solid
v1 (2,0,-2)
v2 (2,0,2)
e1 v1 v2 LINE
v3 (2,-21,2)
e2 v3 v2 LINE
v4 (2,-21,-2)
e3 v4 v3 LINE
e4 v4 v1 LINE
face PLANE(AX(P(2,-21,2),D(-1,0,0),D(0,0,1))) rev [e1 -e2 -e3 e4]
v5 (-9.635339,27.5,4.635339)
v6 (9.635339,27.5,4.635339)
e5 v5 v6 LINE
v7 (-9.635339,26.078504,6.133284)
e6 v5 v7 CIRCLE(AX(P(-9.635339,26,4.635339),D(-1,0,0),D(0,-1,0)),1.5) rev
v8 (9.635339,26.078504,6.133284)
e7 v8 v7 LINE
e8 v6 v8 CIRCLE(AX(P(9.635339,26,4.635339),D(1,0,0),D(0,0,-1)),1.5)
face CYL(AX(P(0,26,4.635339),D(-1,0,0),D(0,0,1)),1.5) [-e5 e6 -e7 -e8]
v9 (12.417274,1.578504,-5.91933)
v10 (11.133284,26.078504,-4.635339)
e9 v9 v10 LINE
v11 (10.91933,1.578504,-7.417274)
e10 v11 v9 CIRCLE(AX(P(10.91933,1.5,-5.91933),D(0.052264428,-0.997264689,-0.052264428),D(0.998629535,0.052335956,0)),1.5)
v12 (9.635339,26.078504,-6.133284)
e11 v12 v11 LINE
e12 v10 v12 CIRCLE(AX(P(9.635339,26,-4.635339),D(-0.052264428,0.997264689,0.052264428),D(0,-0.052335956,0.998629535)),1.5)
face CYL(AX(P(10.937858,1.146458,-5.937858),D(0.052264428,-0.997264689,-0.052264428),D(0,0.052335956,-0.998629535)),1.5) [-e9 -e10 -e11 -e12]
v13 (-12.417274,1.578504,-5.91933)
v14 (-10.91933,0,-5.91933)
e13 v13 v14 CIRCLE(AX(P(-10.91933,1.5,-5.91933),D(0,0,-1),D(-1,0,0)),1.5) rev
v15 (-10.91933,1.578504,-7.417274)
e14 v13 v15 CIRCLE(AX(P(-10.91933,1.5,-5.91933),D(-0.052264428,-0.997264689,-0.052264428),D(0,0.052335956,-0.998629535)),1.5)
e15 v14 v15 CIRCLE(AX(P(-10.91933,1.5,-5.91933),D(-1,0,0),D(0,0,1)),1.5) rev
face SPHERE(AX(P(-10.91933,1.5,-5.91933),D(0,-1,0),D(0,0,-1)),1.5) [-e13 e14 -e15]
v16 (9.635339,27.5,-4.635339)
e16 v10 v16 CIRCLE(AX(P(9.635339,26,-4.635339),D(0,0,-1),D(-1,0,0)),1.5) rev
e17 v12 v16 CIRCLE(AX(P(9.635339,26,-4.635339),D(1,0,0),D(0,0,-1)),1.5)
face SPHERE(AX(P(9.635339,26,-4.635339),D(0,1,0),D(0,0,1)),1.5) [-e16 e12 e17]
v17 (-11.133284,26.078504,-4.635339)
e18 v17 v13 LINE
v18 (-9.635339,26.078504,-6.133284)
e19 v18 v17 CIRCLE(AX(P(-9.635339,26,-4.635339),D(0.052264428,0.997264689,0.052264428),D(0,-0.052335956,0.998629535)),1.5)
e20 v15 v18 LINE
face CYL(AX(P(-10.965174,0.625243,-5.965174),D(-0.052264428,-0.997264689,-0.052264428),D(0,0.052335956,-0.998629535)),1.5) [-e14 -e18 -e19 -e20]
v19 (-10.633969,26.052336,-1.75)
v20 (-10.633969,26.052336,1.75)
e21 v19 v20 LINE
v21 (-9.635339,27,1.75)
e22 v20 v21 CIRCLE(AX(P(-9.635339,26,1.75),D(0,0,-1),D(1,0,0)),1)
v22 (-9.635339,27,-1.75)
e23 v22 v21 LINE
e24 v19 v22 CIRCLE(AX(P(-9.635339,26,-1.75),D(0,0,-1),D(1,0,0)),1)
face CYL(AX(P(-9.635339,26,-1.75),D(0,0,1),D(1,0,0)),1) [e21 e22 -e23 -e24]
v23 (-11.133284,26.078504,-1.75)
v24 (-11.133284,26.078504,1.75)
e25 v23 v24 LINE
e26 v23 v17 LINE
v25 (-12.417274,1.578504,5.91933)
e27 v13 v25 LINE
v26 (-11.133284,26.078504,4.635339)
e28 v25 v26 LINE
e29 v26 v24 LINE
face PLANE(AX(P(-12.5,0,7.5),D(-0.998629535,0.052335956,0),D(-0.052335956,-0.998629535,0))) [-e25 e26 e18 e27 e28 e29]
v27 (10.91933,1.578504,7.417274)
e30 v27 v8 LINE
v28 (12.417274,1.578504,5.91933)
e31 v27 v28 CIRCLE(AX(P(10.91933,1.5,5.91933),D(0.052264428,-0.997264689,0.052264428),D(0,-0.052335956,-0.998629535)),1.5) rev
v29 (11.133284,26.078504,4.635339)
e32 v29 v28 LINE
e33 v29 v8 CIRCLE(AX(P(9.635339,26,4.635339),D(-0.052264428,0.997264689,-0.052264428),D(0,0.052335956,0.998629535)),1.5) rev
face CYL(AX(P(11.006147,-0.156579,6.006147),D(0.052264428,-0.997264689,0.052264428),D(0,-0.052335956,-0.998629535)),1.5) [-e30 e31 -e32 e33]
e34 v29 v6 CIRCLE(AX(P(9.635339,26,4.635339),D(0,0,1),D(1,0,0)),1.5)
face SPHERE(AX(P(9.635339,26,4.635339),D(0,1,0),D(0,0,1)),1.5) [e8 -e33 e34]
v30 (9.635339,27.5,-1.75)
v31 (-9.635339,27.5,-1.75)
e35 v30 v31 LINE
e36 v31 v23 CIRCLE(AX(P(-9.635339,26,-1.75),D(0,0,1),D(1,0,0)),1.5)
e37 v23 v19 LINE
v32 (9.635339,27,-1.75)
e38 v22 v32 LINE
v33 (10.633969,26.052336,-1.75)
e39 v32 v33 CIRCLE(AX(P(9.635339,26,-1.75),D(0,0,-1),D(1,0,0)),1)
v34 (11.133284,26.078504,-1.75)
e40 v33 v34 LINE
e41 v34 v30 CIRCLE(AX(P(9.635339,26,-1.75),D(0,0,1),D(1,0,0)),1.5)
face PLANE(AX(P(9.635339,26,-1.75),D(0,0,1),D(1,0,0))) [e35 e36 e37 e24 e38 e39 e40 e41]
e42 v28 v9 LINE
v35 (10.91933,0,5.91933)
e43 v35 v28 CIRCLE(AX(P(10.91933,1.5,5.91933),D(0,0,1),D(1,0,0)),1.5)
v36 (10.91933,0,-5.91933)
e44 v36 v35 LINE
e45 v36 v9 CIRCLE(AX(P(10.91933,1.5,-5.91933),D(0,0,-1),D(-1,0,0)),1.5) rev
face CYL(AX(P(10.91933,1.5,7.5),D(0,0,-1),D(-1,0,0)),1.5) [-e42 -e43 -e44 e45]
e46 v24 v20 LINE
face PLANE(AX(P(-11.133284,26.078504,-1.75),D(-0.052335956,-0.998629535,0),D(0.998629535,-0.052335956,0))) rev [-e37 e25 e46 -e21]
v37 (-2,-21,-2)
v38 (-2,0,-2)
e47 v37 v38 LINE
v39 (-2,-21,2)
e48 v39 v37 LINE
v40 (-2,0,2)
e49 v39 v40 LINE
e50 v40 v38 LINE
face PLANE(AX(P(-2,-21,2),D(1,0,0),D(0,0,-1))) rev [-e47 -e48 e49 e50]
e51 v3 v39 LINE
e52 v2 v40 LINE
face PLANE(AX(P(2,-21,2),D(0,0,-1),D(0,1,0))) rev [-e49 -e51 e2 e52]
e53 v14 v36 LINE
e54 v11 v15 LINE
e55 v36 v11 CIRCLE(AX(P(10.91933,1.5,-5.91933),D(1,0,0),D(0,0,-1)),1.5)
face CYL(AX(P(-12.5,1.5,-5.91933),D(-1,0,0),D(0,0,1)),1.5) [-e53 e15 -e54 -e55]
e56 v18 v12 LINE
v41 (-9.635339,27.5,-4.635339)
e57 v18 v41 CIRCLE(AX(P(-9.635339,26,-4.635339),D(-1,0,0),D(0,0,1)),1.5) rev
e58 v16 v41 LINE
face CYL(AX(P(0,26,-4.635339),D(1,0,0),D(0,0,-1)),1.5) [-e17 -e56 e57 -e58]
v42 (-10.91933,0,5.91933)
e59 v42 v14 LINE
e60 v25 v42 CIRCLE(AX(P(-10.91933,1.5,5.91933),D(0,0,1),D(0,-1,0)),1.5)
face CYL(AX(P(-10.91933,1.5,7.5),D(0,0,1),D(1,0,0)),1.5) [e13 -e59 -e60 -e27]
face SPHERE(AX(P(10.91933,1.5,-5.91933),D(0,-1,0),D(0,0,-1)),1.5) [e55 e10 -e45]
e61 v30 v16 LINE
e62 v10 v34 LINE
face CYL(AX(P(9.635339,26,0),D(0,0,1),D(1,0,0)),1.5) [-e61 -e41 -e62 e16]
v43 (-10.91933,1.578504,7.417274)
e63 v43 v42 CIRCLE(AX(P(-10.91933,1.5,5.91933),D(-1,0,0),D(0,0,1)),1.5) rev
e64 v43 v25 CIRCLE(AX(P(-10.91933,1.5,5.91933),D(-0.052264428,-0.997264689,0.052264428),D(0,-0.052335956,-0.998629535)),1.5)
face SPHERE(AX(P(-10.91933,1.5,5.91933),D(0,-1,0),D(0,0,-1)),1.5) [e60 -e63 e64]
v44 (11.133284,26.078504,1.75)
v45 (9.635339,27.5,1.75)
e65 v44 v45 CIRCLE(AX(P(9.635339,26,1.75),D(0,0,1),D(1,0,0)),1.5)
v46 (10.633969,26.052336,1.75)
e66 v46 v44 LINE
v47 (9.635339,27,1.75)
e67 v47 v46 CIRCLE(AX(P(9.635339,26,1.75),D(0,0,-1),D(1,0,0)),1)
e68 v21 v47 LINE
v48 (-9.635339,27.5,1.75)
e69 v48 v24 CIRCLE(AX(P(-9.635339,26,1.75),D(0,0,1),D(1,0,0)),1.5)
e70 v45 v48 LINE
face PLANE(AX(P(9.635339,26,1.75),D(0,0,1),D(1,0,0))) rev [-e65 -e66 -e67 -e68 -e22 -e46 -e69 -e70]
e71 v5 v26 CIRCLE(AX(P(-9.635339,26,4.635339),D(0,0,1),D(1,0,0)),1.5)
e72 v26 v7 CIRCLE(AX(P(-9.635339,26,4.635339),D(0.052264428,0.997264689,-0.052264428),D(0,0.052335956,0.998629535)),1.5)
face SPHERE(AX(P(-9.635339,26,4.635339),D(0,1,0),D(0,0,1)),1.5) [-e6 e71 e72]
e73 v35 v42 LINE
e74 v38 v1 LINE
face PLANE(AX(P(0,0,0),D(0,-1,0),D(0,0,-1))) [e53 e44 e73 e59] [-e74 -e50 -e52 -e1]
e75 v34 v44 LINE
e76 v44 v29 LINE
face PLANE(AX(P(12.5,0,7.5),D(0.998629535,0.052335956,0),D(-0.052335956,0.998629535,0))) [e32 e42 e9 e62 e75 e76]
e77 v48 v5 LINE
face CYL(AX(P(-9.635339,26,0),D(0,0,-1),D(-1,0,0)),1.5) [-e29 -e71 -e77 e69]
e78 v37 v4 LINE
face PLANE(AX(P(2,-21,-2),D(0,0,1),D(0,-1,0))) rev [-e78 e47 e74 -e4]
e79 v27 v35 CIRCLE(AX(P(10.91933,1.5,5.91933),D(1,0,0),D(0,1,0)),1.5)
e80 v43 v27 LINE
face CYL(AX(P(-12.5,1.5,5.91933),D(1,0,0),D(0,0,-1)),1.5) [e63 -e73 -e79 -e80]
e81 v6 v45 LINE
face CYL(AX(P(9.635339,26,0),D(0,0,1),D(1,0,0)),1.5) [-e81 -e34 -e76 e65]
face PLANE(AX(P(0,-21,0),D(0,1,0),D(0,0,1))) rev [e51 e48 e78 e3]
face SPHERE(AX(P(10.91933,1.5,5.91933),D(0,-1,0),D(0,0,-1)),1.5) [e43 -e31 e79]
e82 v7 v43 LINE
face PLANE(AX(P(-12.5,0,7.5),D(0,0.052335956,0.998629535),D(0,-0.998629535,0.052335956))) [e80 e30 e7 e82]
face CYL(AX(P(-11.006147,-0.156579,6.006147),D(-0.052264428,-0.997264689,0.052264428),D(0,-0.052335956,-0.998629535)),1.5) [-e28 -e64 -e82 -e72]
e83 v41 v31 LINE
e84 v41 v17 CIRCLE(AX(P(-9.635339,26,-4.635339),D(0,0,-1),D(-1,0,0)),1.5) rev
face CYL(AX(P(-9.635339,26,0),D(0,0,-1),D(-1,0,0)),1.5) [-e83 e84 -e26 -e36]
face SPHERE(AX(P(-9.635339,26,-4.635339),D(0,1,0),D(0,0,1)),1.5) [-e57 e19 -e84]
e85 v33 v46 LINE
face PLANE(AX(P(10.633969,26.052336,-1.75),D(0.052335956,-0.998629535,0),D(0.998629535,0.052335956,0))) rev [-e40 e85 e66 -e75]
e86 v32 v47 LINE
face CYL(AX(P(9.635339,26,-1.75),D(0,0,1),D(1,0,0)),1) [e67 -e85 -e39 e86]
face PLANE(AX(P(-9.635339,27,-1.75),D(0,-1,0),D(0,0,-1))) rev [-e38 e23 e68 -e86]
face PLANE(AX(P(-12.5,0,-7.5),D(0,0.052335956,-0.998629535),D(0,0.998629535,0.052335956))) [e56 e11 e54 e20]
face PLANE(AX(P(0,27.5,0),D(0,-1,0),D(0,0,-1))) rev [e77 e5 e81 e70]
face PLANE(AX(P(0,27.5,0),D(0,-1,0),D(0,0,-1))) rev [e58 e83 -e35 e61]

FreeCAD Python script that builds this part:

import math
import FreeCAD as App
import Part
import Sketcher
from FreeCAD import Vector
Q = App.Units.Quantity


def add_polygon(sketch, points):
    """Adds a closed chain of lines whose ends are joined by coincident constraints."""
    first, n = sketch.GeometryCount, len(points)
    for a, b in zip(points, points[1:] + points[:1]):
        sketch.addGeometry(Part.LineSegment(App.Vector(*a, 0), App.Vector(*b, 0)), False)
    for i in range(n):
        sketch.addConstraint(Sketcher.Constraint("Coincident", first + i, 2, first + (i + 1) % n, 1))

doc = App.newDocument("Part")
body = doc.addObject("PartDesign::Body", "Body")

sketch1 = doc.addObject("Sketcher::SketchObject", "Sketch")
body.addObject(sketch1)
sketch1.AttachmentSupport = (doc.XZ_Plane, [""])
sketch1.MapMode = "FlatFace"
add_polygon(sketch1, [(-12.5, -7.5), (-12.5, 7.5), (12.5, 7.5), (12.5, -7.5)])
sketch1.addConstraint([
    Sketcher.Constraint("Vertical", 0),
    Sketcher.Constraint("Horizontal", 1),
    Sketcher.Constraint("Vertical", 2),
    Sketcher.Constraint("Horizontal", 3),
    Sketcher.Constraint("Symmetric", 0, 2, 2, 2, -1, 1),
    Sketcher.Constraint("DistanceX", 1, 1, 1, 2, Q("25 mm")),
    Sketcher.Constraint("DistanceY", 0, 1, 0, 2, Q("15 mm")),
])
pad1 = doc.addObject("PartDesign::Pad", "Pad")
body.addObject(pad1)
pad1.Profile = sketch1
pad1.Length = 27.5
pad1.Reversed = True
pad1.TaperAngle = -3
doc.recompute()

fillet = doc.addObject("PartDesign::Fillet", "Fillet")
body.addObject(fillet)
fillet.Base = (pad1, ["Edge1"])
fillet.UseAllEdges = True
fillet.Radius = 1.5

sketch2 = doc.addObject("Sketcher::SketchObject", "Sketch001")
body.addObject(sketch2)
sketch2.AttachmentSupport = (doc.XZ_Plane, [""])
sketch2.MapMode = "FlatFace"
add_polygon(sketch2, [(2, -2), (2, 2), (-2, 2), (-2, -2)])
sketch2.addConstraint([
    Sketcher.Constraint("Vertical", 0),
    Sketcher.Constraint("Horizontal", 1),
    Sketcher.Constraint("Vertical", 2),
    Sketcher.Constraint("Horizontal", 3),
    Sketcher.Constraint("Symmetric", 0, 2, 2, 2, -1, 1),
    Sketcher.Constraint("Equal", 3, 0),
    Sketcher.Constraint("DistanceX", 1, 2, 1, 1, Q("4 mm")),
])
pad2 = doc.addObject("PartDesign::Pad", "Pad001")
body.addObject(pad2)
pad2.Profile = sketch2
pad2.Length = 21

sketch3 = doc.addObject("Sketcher::SketchObject", "Sketch002")
body.addObject(sketch3)
sketch3.AttachmentSupport = (doc.XY_Plane, [""])
sketch3.MapMode = "FlatFace"
sketch3.addGeometry([
    Part.LineSegment(Vector(9.635339, 27.5, 0), Vector(-9.635339, 27.5, 0)),
    Part.ArcOfCircle(Part.Circle(Vector(-9.635339, 26, 0), Vector(0, 0, 1), 1.5), math.radians(90), math.radians(177)),
    Part.LineSegment(Vector(-11.133284, 26.078504, 0), Vector(-10.633969, 26.052336, 0)),
    Part.ArcOfCircle(Part.Circle(Vector(-9.635339, 26, 0), Vector(0, 0, 1), 1), math.radians(90), math.radians(177)),
    Part.LineSegment(Vector(-9.635339, 27, 0), Vector(9.635339, 27, 0)),
    Part.ArcOfCircle(Part.Circle(Vector(9.635339, 26, 0), Vector(0, 0, 1), 1), math.radians(3), math.radians(90)),
    Part.LineSegment(Vector(10.633969, 26.052336, 0), Vector(11.133284, 26.078504, 0)),
    Part.ArcOfCircle(Part.Circle(Vector(9.635339, 26, 0), Vector(0, 0, 1), 1.5), math.radians(3), math.radians(90)),
], False)
sketch3.addConstraint([
    Sketcher.Constraint("Tangent", 0, 2, 1, 1),
    Sketcher.Constraint("Coincident", 1, 2, 2, 1),
    Sketcher.Constraint("Coincident", 2, 2, 3, 2),
    Sketcher.Constraint("Tangent", 3, 1, 4, 1),
    Sketcher.Constraint("Tangent", 4, 2, 5, 2),
    Sketcher.Constraint("Coincident", 5, 1, 6, 1),
    Sketcher.Constraint("Coincident", 6, 2, 7, 1),
    Sketcher.Constraint("Tangent", 7, 2, 0, 1),
    Sketcher.Constraint("Horizontal", 0),
    Sketcher.Constraint("Horizontal", 4),
    Sketcher.Constraint("Coincident", 3, 3, 1, 3),
    Sketcher.Constraint("Coincident", 7, 3, 5, 3),
    Sketcher.Constraint("Equal", 3, 5),
    Sketcher.Constraint("Symmetric", 2, 2, 5, 1, -2),
    Sketcher.Constraint("Horizontal", 1, 2, 6, 2),
    Sketcher.Constraint("Radius", 3, Q("1 mm")),
    Sketcher.Constraint("Radius", 1, Q("1.5 mm")),
    Sketcher.Constraint("Angle", 2, Q("-3 deg")),
    Sketcher.Constraint("DistanceY", -1, 1, 1, 3, Q("26 mm")),
    Sketcher.Constraint("DistanceX", 0, 2, 0, 1, Q("19.270678 mm")),
    Sketcher.Constraint("DistanceX", 2, 2, -1, 1, Q("10.633969 mm")),
])
pocket1 = doc.addObject("PartDesign::Pocket", "Pocket")
body.addObject(pocket1)
pocket1.Profile = sketch3
pocket1.Length = 3.5
pocket1.Midplane = True

doc.recompute()
